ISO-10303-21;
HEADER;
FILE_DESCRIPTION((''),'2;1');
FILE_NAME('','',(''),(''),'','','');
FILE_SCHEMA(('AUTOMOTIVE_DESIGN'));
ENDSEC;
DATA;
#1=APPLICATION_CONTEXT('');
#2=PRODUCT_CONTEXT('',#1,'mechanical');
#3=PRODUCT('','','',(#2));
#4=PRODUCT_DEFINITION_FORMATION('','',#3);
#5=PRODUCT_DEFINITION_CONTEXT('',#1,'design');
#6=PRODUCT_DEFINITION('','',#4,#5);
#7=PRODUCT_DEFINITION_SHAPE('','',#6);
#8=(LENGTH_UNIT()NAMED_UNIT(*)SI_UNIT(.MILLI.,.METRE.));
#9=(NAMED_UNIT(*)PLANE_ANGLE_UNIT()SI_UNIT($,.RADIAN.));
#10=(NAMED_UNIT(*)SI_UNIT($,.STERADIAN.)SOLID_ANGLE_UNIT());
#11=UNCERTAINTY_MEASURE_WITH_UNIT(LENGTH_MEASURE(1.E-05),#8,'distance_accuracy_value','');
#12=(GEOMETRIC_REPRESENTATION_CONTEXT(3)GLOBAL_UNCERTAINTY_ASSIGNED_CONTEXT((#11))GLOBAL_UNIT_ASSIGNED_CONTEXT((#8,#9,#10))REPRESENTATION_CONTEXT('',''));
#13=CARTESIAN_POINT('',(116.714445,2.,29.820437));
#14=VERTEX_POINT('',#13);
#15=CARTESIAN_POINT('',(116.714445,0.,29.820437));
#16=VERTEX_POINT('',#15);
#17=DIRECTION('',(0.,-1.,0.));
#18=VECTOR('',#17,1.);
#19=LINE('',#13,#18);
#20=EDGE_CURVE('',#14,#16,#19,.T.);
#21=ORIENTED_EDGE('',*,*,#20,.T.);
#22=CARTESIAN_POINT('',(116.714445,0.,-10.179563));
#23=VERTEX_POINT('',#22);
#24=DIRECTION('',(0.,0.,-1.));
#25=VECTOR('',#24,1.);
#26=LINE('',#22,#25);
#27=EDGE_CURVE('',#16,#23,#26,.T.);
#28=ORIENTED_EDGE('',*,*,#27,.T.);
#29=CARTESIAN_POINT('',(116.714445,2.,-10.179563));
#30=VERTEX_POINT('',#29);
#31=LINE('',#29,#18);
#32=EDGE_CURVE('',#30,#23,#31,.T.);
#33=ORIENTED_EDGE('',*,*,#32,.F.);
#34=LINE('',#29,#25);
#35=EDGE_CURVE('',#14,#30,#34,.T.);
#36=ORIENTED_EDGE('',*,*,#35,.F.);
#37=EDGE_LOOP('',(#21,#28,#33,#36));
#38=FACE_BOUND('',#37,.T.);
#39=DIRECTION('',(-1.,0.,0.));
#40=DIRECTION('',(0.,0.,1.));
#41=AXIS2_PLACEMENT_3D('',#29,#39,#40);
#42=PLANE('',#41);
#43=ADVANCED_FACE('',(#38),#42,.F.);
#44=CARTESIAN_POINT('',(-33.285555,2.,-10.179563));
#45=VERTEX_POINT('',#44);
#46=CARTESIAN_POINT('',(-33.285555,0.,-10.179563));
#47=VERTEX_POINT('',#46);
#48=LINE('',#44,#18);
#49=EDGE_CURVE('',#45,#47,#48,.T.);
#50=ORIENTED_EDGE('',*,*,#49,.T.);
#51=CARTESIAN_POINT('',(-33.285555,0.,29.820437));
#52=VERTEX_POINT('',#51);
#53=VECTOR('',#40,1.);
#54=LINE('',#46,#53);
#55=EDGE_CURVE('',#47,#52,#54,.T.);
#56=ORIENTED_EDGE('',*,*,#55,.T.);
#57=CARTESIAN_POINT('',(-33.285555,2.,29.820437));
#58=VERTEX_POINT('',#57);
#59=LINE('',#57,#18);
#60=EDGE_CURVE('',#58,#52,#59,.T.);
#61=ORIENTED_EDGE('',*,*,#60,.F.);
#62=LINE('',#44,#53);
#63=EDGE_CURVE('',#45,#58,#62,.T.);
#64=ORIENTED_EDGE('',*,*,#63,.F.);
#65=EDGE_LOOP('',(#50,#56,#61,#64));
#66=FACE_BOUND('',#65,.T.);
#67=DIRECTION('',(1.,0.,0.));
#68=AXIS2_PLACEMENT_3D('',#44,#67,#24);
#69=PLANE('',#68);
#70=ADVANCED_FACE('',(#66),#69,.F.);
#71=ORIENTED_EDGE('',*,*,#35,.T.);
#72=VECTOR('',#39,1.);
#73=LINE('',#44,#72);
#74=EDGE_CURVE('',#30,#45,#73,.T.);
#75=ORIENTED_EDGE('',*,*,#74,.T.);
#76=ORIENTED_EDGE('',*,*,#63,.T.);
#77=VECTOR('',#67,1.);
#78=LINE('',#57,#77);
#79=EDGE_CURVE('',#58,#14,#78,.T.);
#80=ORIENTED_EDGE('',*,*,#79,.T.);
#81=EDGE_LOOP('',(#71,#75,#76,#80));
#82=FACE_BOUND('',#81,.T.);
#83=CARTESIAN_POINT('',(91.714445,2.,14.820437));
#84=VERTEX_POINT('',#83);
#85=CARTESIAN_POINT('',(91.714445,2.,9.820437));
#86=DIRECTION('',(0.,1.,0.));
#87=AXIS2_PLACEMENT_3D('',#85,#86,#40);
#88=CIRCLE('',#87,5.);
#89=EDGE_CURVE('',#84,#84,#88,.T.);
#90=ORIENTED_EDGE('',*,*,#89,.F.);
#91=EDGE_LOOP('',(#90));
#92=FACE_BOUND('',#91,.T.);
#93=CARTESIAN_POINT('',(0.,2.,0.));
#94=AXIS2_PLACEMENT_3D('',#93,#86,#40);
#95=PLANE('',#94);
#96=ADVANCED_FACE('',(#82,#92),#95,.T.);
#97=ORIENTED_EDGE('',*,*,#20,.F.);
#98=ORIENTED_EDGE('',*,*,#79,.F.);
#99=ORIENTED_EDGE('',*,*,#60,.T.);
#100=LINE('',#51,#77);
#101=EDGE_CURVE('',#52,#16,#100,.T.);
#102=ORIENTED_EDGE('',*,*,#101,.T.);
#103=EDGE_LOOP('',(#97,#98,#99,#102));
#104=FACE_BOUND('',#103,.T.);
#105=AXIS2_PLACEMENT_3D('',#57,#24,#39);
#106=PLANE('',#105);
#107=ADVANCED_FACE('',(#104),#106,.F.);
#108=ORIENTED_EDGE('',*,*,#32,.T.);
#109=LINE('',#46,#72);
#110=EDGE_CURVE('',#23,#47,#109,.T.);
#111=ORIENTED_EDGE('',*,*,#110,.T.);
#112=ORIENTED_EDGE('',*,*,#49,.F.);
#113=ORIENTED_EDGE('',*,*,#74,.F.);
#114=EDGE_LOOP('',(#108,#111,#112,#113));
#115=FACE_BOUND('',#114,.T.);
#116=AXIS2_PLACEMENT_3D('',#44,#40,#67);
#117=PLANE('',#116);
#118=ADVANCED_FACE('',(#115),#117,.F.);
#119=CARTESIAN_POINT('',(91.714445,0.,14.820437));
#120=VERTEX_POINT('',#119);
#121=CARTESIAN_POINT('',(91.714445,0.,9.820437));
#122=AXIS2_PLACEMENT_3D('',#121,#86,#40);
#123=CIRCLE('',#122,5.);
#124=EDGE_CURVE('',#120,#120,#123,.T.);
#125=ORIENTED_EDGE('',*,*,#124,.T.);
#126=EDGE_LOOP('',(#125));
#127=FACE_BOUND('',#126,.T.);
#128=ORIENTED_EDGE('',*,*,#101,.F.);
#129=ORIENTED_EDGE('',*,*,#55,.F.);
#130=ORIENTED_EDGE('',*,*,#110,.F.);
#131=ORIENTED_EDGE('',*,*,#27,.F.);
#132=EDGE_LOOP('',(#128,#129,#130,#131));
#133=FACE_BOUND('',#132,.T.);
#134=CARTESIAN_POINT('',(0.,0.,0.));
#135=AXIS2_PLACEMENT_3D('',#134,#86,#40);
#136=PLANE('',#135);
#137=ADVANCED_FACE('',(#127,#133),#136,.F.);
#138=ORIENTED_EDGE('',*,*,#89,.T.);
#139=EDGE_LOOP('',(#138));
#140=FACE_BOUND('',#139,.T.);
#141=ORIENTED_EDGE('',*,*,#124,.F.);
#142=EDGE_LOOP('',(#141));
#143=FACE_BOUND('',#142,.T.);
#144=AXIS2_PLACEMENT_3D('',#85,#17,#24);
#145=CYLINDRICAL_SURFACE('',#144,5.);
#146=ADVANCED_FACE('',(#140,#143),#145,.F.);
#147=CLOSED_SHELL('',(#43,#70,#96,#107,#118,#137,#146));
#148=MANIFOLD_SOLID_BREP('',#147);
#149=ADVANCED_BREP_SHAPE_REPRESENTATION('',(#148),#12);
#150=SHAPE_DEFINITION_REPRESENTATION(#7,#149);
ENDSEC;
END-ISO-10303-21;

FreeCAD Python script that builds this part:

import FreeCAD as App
import Part
import Sketcher

V = App.Vector
Q = App.Units.Quantity

doc = App.newDocument("Part")
params = doc.addObject("Spreadsheet::Sheet", "Params")
for row, (alias, value) in enumerate([
    ("sketch1_width", "150 mm"),
    ("sketch1_height", "40 mm"),
    ("pad1_length", "2 mm"),
    ("sketch2_diameter", "10 mm"),
], start=1):
    params.set(f"A{row}", alias)
    params.set(f"B{row}", "=" + value)
    params.setAlias(f"B{row}", alias)

body = doc.addObject("PartDesign::Body", "Body")

# Sketch on XZ plane
sketch1 = doc.addObject("Sketcher::SketchObject", "Sketch")
body.addObject(sketch1)
sketch1.AttachmentSupport = (doc.XZ_Plane, [""])
sketch1.MapMode = "FlatFace"
sketch1.addGeometry([
    Part.LineSegment(V(-33, -10, 0), V(-33, 30, 0)),
    Part.LineSegment(V(-33, 30, 0), V(117, 30, 0)),
    Part.LineSegment(V(117, 30, 0), V(117, -10, 0)),
    Part.LineSegment(V(117, -10, 0), V(-33, -10, 0)),
], False)
sketch1.addConstraint([
    Sketcher.Constraint("Coincident", 0, 2, 1, 1),
    Sketcher.Constraint("Coincident", 1, 2, 2, 1),
    Sketcher.Constraint("Coincident", 2, 2, 3, 1),
    Sketcher.Constraint("Coincident", 3, 2, 0, 1),
    Sketcher.Constraint("Vertical", 0),
    Sketcher.Constraint("Horizontal", 1),
    Sketcher.Constraint("Vertical", 2),
    Sketcher.Constraint("Horizontal", 3),
    Sketcher.Constraint("DistanceX", 1, 1, 1, 2, Q("150 mm")),
    Sketcher.Constraint("DistanceY", 0, 1, 0, 2, Q("40 mm")),
    Sketcher.Constraint("DistanceX", 0, 2, -1, 1, Q("33.285555 mm")),
    Sketcher.Constraint("DistanceY", -1, 1, 0, 2, Q("29.820437 mm")),
])
sketch1.setExpression("Constraints[8]", "Params.sketch1_width")
sketch1.setExpression("Constraints[9]", "Params.sketch1_height")
pad1 = doc.addObject("PartDesign::Pad", "Pad")
body.addObject(pad1)
pad1.Profile = sketch1
pad1.setExpression("Length", "Params.pad1_length")
pad1.Reversed = True

# Sketch on XZ plane
sketch2 = doc.addObject("Sketcher::SketchObject", "Sketch001")
body.addObject(sketch2)
sketch2.AttachmentSupport = (doc.XZ_Plane, [""])
sketch2.MapMode = "FlatFace"
sketch2.addGeometry(Part.Circle(V(92, 10, 0), V(0, 0, 1), 5), False)
sketch2.addConstraint([
    Sketcher.Constraint("Diameter", 0, Q("10 mm")),
    Sketcher.Constraint("DistanceX", -1, 1, 0, 3, Q("91.714445 mm")),
    Sketcher.Constraint("DistanceY", -1, 1, 0, 3, Q("9.820437 mm")),
])
sketch2.setExpression("Constraints[0]", "Params.sketch2_diameter")
pocket1 = doc.addObject("PartDesign::Pocket", "Pocket")
body.addObject(pocket1)
pocket1.Profile = sketch2
pocket1.Type = "ThroughAll"

doc.recompute()
